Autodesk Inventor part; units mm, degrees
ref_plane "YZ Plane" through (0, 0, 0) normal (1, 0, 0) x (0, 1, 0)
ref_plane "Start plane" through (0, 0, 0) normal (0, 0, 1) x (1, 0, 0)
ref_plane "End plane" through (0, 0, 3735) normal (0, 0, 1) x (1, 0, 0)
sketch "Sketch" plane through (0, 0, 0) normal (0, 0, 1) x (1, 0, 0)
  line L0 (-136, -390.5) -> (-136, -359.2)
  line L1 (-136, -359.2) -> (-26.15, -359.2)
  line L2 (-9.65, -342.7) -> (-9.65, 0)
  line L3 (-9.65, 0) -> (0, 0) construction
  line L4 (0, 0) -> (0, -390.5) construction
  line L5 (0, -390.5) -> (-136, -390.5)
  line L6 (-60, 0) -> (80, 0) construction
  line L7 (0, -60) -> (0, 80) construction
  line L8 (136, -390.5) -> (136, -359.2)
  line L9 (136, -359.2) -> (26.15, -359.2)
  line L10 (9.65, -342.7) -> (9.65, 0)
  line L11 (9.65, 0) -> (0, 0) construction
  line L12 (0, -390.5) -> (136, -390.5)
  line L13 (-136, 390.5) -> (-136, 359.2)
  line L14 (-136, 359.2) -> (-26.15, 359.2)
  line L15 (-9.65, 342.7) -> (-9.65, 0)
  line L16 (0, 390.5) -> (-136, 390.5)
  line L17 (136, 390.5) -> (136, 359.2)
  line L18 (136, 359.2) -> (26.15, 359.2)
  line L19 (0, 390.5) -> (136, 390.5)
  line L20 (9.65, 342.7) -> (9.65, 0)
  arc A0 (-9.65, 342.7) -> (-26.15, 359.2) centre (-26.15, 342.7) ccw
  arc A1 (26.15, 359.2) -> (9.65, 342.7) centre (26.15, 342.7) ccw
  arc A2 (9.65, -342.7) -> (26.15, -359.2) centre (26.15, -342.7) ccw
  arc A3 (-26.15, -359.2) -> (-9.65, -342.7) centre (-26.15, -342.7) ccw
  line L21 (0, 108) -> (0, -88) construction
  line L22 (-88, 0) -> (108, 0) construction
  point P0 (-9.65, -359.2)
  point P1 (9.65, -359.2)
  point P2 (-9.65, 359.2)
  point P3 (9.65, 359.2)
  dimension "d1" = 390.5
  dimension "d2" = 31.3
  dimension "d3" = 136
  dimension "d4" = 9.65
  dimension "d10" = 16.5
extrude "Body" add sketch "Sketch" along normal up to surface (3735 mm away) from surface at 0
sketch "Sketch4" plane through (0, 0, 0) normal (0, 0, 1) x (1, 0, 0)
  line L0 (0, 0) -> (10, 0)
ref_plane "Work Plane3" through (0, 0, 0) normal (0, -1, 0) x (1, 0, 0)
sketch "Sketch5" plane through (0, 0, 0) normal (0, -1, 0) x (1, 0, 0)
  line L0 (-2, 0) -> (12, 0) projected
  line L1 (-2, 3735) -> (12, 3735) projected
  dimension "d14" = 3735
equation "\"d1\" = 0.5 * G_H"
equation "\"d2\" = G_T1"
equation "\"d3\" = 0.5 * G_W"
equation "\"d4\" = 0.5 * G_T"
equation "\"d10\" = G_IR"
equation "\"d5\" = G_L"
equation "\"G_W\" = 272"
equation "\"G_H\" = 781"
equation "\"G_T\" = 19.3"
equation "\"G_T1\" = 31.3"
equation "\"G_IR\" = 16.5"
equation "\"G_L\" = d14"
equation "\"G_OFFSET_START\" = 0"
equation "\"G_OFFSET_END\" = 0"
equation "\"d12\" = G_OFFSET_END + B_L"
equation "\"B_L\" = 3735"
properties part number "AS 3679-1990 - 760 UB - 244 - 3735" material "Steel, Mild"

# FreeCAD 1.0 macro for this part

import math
import FreeCAD as App
import Part
import Sketcher
from FreeCAD import Vector
Q = App.Units.Quantity

doc = App.newDocument("Part")
body = doc.addObject("PartDesign::Body", "Body")

# Sketch on XY plane
sketch1 = body.newObject("Sketcher::SketchObject", "Sketch")
sketch1.AttachmentSupport = (doc.getObject("XY_Plane"), [""])
sketch1.MapMode = "FlatFace"
sketch1.addGeometry([
    Part.LineSegment(Vector(-136, -359, 0), Vector(-136, -390, 0)),  # 0
    Part.LineSegment(Vector(-136, -390, 0), Vector(136, -390, 0)),  # 1
    Part.LineSegment(Vector(136, -390, 0), Vector(136, -359, 0)),  # 2
    Part.LineSegment(Vector(136, -359, 0), Vector(26, -359, 0)),  # 3
    Part.ArcOfCircle(Part.Circle(Vector(26, -343, 0), Vector(0, 0, 1), 16), math.radians(180), math.radians(270)),  # 4
    Part.LineSegment(Vector(10, -343, 0), Vector(10, 343, 0)),  # 5
    Part.ArcOfCircle(Part.Circle(Vector(26, 343, 0), Vector(0, 0, 1), 16), math.radians(90), math.radians(180)),  # 6
    Part.LineSegment(Vector(26, 359, 0), Vector(136, 359, 0)),  # 7
    Part.LineSegment(Vector(136, 359, 0), Vector(136, 390, 0)),  # 8
    Part.LineSegment(Vector(136, 390, 0), Vector(-136, 390, 0)),  # 9
    Part.LineSegment(Vector(-136, 390, 0), Vector(-136, 359, 0)),  # 10
    Part.LineSegment(Vector(-136, 359, 0), Vector(-26, 359, 0)),  # 11
    Part.ArcOfCircle(Part.Circle(Vector(-26, 343, 0), Vector(0, 0, 1), 16), math.radians(0), math.radians(90)),  # 12
    Part.LineSegment(Vector(-10, 343, 0), Vector(-10, -343, 0)),  # 13
    Part.ArcOfCircle(Part.Circle(Vector(-26, -343, 0), Vector(0, 0, 1), 16), math.radians(-90), math.radians(0)),  # 14
    Part.LineSegment(Vector(-26, -359, 0), Vector(-136, -359, 0)),  # 15
], False)
sketch1.addConstraint([
    Sketcher.Constraint("Coincident", 0, 2, 1, 1),
    Sketcher.Constraint("Coincident", 1, 2, 2, 1),
    Sketcher.Constraint("Coincident", 2, 2, 3, 1),
    Sketcher.Constraint("Tangent", 3, 2, 4, 2),
    Sketcher.Constraint("Tangent", 4, 1, 5, 1),
    Sketcher.Constraint("Tangent", 5, 2, 6, 2),
    Sketcher.Constraint("Tangent", 6, 1, 7, 1),
    Sketcher.Constraint("Coincident", 7, 2, 8, 1),
    Sketcher.Constraint("Coincident", 8, 2, 9, 1),
    Sketcher.Constraint("Coincident", 9, 2, 10, 1),
    Sketcher.Constraint("Coincident", 10, 2, 11, 1),
    Sketcher.Constraint("Tangent", 11, 2, 12, 2),
    Sketcher.Constraint("Tangent", 12, 1, 13, 1),
    Sketcher.Constraint("Tangent", 13, 2, 14, 2),
    Sketcher.Constraint("Tangent", 14, 1, 15, 1),
    Sketcher.Constraint("Coincident", 15, 2, 0, 1),
    Sketcher.Constraint("Vertical", 0),
    Sketcher.Constraint("Horizontal", 1),
    Sketcher.Constraint("Vertical", 2),
    Sketcher.Constraint("Horizontal", 3),
    Sketcher.Constraint("Vertical", 5),
    Sketcher.Constraint("Horizontal", 7),
    Sketcher.Constraint("Vertical", 8),
    Sketcher.Constraint("Horizontal", 9),
    Sketcher.Constraint("Vertical", 10),
    Sketcher.Constraint("Horizontal", 11),
    Sketcher.Constraint("Vertical", 13),
    Sketcher.Constraint("Horizontal", 15),
    Sketcher.Constraint("Equal", 4, 6),
    Sketcher.Constraint("Equal", 6, 12),
    Sketcher.Constraint("Equal", 12, 14),
    Sketcher.Constraint("Symmetric", 4, 3, 12, 3, -1, 1),
    Sketcher.Constraint("Symmetric", 0, 2, 8, 2, -1, 1),
    Sketcher.Constraint("Symmetric", 7, 2, 10, 2, -2),
    Sketcher.Constraint("Symmetric", 2, 2, 15, 2, -2),
    Sketcher.Constraint("Radius", 4, Q("16.5 mm")),
    Sketcher.Constraint("DistanceY", 0, 2, 0, 1, Q("31.3 mm")),
    Sketcher.Constraint("DistanceX", 0, 2, -1, 1, Q("136 mm")),
    Sketcher.Constraint("DistanceY", 0, 2, -1, 1, Q("390.5 mm")),
    Sketcher.Constraint("DistanceX", -1, 1, 4, 1, Q("9.65 mm")),
])
pad1 = body.newObject("PartDesign::Pad", "Pad")
pad1.Profile = sketch1
pad1.Length = 3735

doc.recompute()
